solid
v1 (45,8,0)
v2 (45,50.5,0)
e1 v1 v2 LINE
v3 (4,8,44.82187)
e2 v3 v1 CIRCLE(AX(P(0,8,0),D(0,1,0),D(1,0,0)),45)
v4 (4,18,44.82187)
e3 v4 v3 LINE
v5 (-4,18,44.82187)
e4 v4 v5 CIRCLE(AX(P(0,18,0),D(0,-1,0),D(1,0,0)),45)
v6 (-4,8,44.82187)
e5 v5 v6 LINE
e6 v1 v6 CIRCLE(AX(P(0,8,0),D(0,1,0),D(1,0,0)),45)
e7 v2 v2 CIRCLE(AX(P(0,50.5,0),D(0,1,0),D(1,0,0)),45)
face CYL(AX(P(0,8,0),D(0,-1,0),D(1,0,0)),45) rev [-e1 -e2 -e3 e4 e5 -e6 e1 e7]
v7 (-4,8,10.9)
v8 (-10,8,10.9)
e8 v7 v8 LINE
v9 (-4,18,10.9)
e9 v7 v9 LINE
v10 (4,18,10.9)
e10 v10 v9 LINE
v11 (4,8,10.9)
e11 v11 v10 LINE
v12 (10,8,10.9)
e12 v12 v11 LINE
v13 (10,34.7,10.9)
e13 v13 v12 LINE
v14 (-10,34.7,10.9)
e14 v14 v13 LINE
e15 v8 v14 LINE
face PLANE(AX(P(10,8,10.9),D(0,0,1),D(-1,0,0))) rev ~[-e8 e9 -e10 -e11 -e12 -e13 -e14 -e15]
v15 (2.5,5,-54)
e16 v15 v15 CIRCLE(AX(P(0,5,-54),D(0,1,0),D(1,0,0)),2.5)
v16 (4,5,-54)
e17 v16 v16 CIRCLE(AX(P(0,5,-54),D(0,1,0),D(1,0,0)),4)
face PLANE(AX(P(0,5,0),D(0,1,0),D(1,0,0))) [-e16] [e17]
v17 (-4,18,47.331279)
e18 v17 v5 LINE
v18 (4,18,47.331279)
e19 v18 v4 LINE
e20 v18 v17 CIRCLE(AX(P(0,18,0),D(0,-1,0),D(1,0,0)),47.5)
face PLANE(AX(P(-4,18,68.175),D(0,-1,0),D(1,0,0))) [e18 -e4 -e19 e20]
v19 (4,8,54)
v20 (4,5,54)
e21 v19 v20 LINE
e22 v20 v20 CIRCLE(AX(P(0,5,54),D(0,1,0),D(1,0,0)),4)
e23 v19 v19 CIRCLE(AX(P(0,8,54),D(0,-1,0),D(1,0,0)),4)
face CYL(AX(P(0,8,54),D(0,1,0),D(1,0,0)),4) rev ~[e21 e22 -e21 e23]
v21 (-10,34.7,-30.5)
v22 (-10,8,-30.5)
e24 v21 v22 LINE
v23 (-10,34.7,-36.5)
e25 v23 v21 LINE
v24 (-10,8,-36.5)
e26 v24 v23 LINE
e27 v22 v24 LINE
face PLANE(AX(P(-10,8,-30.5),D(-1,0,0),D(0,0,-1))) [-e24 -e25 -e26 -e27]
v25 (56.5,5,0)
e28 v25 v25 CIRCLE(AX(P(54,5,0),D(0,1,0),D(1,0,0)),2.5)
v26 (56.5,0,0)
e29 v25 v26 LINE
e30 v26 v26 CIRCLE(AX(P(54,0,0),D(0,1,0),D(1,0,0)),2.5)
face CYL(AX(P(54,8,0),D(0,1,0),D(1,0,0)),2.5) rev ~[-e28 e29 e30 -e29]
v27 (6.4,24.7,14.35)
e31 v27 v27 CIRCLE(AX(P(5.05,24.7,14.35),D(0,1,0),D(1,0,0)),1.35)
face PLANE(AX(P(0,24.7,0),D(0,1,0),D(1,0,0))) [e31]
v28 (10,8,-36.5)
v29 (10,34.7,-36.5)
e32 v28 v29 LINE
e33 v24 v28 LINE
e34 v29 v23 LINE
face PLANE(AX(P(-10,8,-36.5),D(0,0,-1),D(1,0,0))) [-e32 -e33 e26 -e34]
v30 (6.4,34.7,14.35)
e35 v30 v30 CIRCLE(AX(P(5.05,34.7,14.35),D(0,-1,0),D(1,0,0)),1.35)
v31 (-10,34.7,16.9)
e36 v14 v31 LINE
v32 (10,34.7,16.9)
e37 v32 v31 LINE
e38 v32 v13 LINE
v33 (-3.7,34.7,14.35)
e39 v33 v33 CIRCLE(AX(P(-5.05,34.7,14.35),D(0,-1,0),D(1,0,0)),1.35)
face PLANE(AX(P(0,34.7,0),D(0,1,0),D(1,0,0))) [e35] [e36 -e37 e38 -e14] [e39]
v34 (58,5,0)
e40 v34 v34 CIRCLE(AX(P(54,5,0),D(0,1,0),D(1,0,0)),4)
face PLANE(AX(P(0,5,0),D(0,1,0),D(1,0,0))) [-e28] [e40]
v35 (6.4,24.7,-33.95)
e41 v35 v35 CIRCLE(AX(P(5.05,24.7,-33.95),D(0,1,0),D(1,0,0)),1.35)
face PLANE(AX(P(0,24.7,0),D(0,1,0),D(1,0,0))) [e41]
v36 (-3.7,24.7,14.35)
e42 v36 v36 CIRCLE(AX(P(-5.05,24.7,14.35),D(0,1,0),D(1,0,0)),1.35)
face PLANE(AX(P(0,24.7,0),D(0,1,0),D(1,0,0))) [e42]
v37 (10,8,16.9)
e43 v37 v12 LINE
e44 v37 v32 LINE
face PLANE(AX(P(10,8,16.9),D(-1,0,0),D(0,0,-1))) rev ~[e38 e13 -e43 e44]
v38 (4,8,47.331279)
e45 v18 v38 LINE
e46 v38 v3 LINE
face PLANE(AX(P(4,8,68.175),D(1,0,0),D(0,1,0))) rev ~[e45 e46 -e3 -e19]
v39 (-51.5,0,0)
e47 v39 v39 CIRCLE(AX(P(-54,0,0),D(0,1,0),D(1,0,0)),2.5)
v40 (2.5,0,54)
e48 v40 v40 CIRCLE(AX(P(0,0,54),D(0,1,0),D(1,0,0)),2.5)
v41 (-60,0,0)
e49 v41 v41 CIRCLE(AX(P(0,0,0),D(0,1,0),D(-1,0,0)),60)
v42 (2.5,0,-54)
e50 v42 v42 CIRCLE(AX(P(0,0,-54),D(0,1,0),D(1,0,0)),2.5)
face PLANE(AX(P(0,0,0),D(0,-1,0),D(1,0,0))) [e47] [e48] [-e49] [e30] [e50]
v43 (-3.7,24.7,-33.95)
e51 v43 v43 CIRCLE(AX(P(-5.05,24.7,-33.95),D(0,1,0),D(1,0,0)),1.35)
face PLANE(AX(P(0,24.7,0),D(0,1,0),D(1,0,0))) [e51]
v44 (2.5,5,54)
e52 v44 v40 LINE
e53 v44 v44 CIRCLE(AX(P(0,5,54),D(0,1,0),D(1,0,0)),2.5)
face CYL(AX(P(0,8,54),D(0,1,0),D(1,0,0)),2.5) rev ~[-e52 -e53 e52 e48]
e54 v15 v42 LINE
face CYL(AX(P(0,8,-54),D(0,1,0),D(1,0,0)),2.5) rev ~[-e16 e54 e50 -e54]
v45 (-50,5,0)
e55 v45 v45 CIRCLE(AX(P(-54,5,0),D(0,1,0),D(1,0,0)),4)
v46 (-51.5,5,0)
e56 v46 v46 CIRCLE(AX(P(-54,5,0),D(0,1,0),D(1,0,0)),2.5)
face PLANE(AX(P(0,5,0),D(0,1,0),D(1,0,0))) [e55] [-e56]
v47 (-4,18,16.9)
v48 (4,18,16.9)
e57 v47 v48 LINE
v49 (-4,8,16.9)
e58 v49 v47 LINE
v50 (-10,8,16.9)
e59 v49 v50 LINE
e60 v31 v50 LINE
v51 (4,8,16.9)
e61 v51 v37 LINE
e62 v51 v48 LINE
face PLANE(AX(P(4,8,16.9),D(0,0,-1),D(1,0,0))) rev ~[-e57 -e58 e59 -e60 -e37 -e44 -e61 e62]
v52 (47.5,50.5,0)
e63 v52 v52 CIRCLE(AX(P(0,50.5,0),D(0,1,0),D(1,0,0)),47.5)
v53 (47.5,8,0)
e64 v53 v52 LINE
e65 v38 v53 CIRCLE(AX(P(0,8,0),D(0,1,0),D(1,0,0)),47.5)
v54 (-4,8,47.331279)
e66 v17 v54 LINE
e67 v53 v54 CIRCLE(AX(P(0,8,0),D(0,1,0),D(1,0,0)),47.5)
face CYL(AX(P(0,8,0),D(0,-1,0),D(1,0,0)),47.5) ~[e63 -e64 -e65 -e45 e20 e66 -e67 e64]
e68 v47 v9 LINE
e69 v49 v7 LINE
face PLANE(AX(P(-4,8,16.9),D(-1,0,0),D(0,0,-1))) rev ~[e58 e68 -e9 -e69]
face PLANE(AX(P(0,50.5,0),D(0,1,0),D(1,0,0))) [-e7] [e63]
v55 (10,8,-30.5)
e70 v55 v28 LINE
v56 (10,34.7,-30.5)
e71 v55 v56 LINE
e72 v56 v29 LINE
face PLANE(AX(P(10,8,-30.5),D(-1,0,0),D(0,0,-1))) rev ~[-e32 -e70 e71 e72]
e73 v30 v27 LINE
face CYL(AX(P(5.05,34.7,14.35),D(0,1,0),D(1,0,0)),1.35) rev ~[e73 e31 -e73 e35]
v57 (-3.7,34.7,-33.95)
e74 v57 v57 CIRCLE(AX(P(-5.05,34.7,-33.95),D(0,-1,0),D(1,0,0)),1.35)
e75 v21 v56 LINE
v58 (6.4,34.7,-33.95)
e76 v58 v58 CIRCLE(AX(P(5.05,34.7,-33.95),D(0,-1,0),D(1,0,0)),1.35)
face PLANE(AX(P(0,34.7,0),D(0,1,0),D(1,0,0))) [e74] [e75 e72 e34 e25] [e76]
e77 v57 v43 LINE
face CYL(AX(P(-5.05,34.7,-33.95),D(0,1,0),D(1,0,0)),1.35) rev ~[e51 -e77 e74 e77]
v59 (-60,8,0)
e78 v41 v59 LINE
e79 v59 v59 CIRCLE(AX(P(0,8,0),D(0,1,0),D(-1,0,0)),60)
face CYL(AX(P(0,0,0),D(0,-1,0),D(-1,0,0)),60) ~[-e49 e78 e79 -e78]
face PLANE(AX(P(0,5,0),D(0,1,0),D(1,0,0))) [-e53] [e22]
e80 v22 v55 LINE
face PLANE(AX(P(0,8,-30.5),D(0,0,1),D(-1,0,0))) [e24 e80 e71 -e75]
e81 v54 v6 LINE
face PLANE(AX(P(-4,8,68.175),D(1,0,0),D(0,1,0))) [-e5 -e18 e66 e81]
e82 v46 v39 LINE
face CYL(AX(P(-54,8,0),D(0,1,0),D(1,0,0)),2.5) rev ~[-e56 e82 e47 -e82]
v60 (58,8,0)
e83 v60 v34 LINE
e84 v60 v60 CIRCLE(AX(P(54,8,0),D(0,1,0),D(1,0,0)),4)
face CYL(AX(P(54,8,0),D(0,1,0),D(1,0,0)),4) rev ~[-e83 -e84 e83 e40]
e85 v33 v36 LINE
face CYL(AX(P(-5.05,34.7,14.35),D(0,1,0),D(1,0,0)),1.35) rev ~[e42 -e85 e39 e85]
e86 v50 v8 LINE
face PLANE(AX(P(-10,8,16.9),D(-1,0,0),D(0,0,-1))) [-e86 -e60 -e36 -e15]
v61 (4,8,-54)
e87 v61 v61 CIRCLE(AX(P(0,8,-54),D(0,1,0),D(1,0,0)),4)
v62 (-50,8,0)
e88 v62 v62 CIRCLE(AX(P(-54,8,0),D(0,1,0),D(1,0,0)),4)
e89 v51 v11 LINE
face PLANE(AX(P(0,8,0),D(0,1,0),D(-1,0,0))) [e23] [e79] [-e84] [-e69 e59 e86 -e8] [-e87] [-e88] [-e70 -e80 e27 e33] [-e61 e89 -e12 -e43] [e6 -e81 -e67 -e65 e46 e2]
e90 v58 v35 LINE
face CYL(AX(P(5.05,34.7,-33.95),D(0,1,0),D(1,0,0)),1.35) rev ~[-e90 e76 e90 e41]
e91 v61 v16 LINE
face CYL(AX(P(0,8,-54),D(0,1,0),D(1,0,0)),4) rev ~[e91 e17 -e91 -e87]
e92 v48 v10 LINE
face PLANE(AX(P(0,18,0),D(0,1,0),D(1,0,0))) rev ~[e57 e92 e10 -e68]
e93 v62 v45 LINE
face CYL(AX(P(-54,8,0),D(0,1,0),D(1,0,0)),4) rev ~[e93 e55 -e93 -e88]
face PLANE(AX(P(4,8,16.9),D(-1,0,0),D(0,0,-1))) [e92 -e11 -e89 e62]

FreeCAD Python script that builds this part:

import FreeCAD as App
import Part
import Sketcher


def add_polygon(sketch, points):
    """Adds a closed chain of lines whose ends are joined by coincident constraints."""
    first, n = sketch.GeometryCount, len(points)
    for a, b in zip(points, points[1:] + points[:1]):
        sketch.addGeometry(Part.LineSegment(App.Vector(*a, 0), App.Vector(*b, 0)), False)
    for i in range(n):
        sketch.addConstraint(Sketcher.Constraint("Coincident", first + i, 2, first + (i + 1) % n, 1))

doc = App.newDocument("Part")
body = doc.addObject("PartDesign::Body", "Body")
body.AllowCompound = True

# Sketch on XZ plane
sketch1 = body.newObject("Sketcher::SketchObject", "Sketch")
sketch1.AttachmentSupport = (doc.getObject("XZ_Plane"), [""])
sketch1.MapMode = "FlatFace"
sketch1.addGeometry(Part.Circle(App.Vector(0, 0, 0), App.Vector(0, 0, 1), 60), False)
sketch1.addConstraint(Sketcher.Constraint("Coincident", 0, 3, -1, 1))
sketch1.addConstraint(Sketcher.Constraint("Diameter", 0, 120.0))
pad1 = body.newObject("PartDesign::Pad", "Pad")
pad1.Profile = sketch1
pad1.Length = 8
pad1.Reversed = True

# Sketch on XZ plane
sketch2 = body.newObject("Sketcher::SketchObject", "Sketch001")
sketch2.AttachmentSupport = (doc.getObject("XZ_Plane"), [""])
sketch2.MapMode = "FlatFace"
sketch2.AttachmentOffset = App.Placement(App.Vector(0, 0, -8), App.Rotation())
sketch2.addGeometry(Part.Circle(App.Vector(-54, 0, 0), App.Vector(0, 0, 1), 2.5), False)
sketch2.addGeometry(Part.Circle(App.Vector(0, 54, 0), App.Vector(0, 0, 1), 2.5), False)
sketch2.addGeometry(Part.Circle(App.Vector(54, 0, 0), App.Vector(0, 0, 1), 2.5), False)
sketch2.addGeometry(Part.Circle(App.Vector(0, -54, 0), App.Vector(0, 0, 1), 2.5), False)
sketch2.addConstraint(Sketcher.Constraint("Equal", 0, 1))
sketch2.addConstraint(Sketcher.Constraint("Equal", 1, 2))
sketch2.addConstraint(Sketcher.Constraint("Equal", 2, 3))
sketch2.addConstraint(Sketcher.Constraint("Symmetric", 0, 3, 2, 3, -1, 1))
sketch2.addConstraint(Sketcher.Constraint("Symmetric", 1, 3, 3, 3, -1, 1))
sketch2.addConstraint(Sketcher.Constraint("PointOnObject", 0, 3, -1))
sketch2.addConstraint(Sketcher.Constraint("PointOnObject", 1, 3, -2))
sketch2.addConstraint(Sketcher.Constraint("Diameter", 0, 5.0))
sketch2.addConstraint(Sketcher.Constraint("DistanceX", 0, 3, -1, 1, 54.0))
sketch2.addConstraint(Sketcher.Constraint("DistanceY", -1, 1, 1, 3, 54.0))
pocket1 = body.newObject("PartDesign::Pocket", "Pocket")
pocket1.Profile = sketch2
pocket1.Length = 8
pocket1.Reversed = True

# Sketch on XZ plane
sketch3 = body.newObject("Sketcher::SketchObject", "Sketch002")
sketch3.AttachmentSupport = (doc.getObject("XZ_Plane"), [""])
sketch3.MapMode = "FlatFace"
sketch3.AttachmentOffset = App.Placement(App.Vector(0, 0, -8), App.Rotation())
sketch3.addGeometry(Part.Circle(App.Vector(-54, 0, 0), App.Vector(0, 0, 1), 4), False)
sketch3.addGeometry(Part.Circle(App.Vector(-54, 0, 0), App.Vector(0, 0, 1), 2.5), False)
sketch3.addGeometry(Part.Circle(App.Vector(0, -54, 0), App.Vector(0, 0, 1), 4), False)
sketch3.addGeometry(Part.Circle(App.Vector(0, -54, 0), App.Vector(0, 0, 1), 2.5), False)
sketch3.addGeometry(Part.Circle(App.Vector(54, 0, 0), App.Vector(0, 0, 1), 4), False)
sketch3.addGeometry(Part.Circle(App.Vector(54, 0, 0), App.Vector(0, 0, 1), 2.5), False)
sketch3.addGeometry(Part.Circle(App.Vector(0, 54, 0), App.Vector(0, 0, 1), 4), False)
sketch3.addGeometry(Part.Circle(App.Vector(0, 54, 0), App.Vector(0, 0, 1), 2.5), False)
sketch3.addConstraint(Sketcher.Constraint("Coincident", 1, 3, 0, 3))
sketch3.addConstraint(Sketcher.Constraint("Coincident", 3, 3, 2, 3))
sketch3.addConstraint(Sketcher.Constraint("Coincident", 5, 3, 4, 3))
sketch3.addConstraint(Sketcher.Constraint("Coincident", 7, 3, 6, 3))
sketch3.addConstraint(Sketcher.Constraint("Equal", 0, 2))
sketch3.addConstraint(Sketcher.Constraint("Equal", 1, 3))
sketch3.addConstraint(Sketcher.Constraint("Equal", 2, 4))
sketch3.addConstraint(Sketcher.Constraint("Equal", 3, 5))
sketch3.addConstraint(Sketcher.Constraint("Equal", 4, 6))
sketch3.addConstraint(Sketcher.Constraint("Equal", 5, 7))
sketch3.addConstraint(Sketcher.Constraint("Symmetric", 0, 3, 4, 3, -1, 1))
sketch3.addConstraint(Sketcher.Constraint("Symmetric", 2, 3, 6, 3, -1, 1))
sketch3.addConstraint(Sketcher.Constraint("PointOnObject", 0, 3, -1))
sketch3.addConstraint(Sketcher.Constraint("PointOnObject", 2, 3, -2))
sketch3.addConstraint(Sketcher.Constraint("Diameter", 0, 8.0))
sketch3.addConstraint(Sketcher.Constraint("Diameter", 1, 5.0))
sketch3.addConstraint(Sketcher.Constraint("DistanceX", 0, 3, -1, 1, 54.0))
sketch3.addConstraint(Sketcher.Constraint("DistanceY", 2, 3, -1, 1, 54.0))
pocket2 = body.newObject("PartDesign::Pocket", "Pocket001")
pocket2.Profile = sketch3
pocket2.Length = 3
pocket2.Reversed = True

# Sketch on XZ plane
sketch4 = body.newObject("Sketcher::SketchObject", "Sketch003")
sketch4.AttachmentSupport = (doc.getObject("XZ_Plane"), [""])
sketch4.MapMode = "FlatFace"
sketch4.AttachmentOffset = App.Placement(App.Vector(0, 0, -8), App.Rotation())
sketch4.addGeometry(Part.Circle(App.Vector(0, 0, 0), App.Vector(0, 0, 1), 48), False)
sketch4.addGeometry(Part.Circle(App.Vector(0, 0, 0), App.Vector(0, 0, 1), 45), False)
sketch4.addConstraint(Sketcher.Constraint("Coincident", 0, 3, -1, 1))
sketch4.addConstraint(Sketcher.Constraint("Coincident", 1, 3, -1, 1))
sketch4.addConstraint(Sketcher.Constraint("Diameter", 0, 95.0))
sketch4.addConstraint(Sketcher.Constraint("Diameter", 1, 90.0))
pad2 = body.newObject("PartDesign::Pad", "Pad001")
pad2.Profile = sketch4
pad2.Length = 10
pad2.Reversed = True

# Sketch on XZ plane
sketch5 = body.newObject("Sketcher::SketchObject", "Sketch004")
sketch5.AttachmentSupport = (doc.getObject("XZ_Plane"), [""])
sketch5.MapMode = "FlatFace"
sketch5.AttachmentOffset = App.Placement(App.Vector(0, 0, -8), App.Rotation())
add_polygon(sketch5, [(10, 9), (-10, 9), (-10, 17), (10, 17)])  # lines 0-3
add_polygon(sketch5, [(-10, -31), (10, -31), (10, -39), (-10, -39)])  # lines 4-7
sketch5.addConstraint(Sketcher.Constraint("Horizontal", 0))
sketch5.addConstraint(Sketcher.Constraint("Vertical", 1))
sketch5.addConstraint(Sketcher.Constraint("Horizontal", 2))
sketch5.addConstraint(Sketcher.Constraint("Vertical", 3))
sketch5.addConstraint(Sketcher.Constraint("Horizontal", 4))
sketch5.addConstraint(Sketcher.Constraint("Vertical", 5))
sketch5.addConstraint(Sketcher.Constraint("Horizontal", 6))
sketch5.addConstraint(Sketcher.Constraint("Vertical", 7))
sketch5.addConstraint(Sketcher.Constraint("Vertical", 3, 2, 4, 2))
sketch5.addConstraint(Sketcher.Constraint("Vertical", 1, 2, 6, 2))
sketch5.addConstraint(Sketcher.Constraint("Equal", 3, 5))
sketch5.addConstraint(Sketcher.Constraint("DistanceX", 0, 2, 0, 1, 20.0))
sketch5.addConstraint(Sketcher.Constraint("DistanceY", 1, 1, 1, 2, 8.0))
sketch5.addConstraint(Sketcher.Constraint("DistanceX", 0, 2, -1, 1, 10.0))
sketch5.addConstraint(Sketcher.Constraint("DistanceY", -1, 1, 0, 2, 9.0))
sketch5.addConstraint(Sketcher.Constraint("DistanceY", 4, 2, 3, 2, 40.0))
pad3 = body.newObject("PartDesign::Pad", "Pad002")
pad3.Profile = sketch5
pad3.Length = 28
pad3.Reversed = True

# Sketch on XZ plane
sketch6 = body.newObject("Sketcher::SketchObject", "Sketch005")
sketch6.AttachmentSupport = (doc.getObject("XZ_Plane"), [""])
sketch6.MapMode = "FlatFace"
sketch6.AttachmentOffset = App.Placement(App.Vector(0, 0, -36), App.Rotation())
add_polygon(sketch6, [(4, 17), (4, 9), (-4, 9), (-4, 17)])  # lines 0-3
sketch6.addConstraint(Sketcher.Constraint("Vertical", 0))
sketch6.addConstraint(Sketcher.Constraint("Horizontal", 1))
sketch6.addConstraint(Sketcher.Constraint("Vertical", 2))
sketch6.addConstraint(Sketcher.Constraint("Horizontal", 3))
sketch6.addConstraint(Sketcher.Constraint("Equal", 3, 0))
sketch6.addConstraint(Sketcher.Constraint("DistanceX", -1, 1, 0, 2, 4.0))
sketch6.addConstraint(Sketcher.Constraint("DistanceX", 1, 2, -1, 1, 4.0))
sketch6.addConstraint(Sketcher.Constraint("DistanceY", -1, 1, 0, 2, 9.0))
pocket3 = body.newObject("PartDesign::Pocket", "Pocket002")
pocket3.Profile = sketch6
pocket3.Length = 28
pocket3.Reversed = True

# Sketch on XZ plane
sketch7 = body.newObject("Sketcher::SketchObject", "Sketch006")
sketch7.AttachmentSupport = (doc.getObject("XZ_Plane"), [""])
sketch7.MapMode = "FlatFace"
sketch7.AttachmentOffset = App.Placement(App.Vector(0, 0, -36), App.Rotation())
add_polygon(sketch7, [(-4, 9), (-4, 17), (4, 17), (4, 9)])  # lines 0-3
sketch7.addConstraint(Sketcher.Constraint("Vertical", 0))
sketch7.addConstraint(Sketcher.Constraint("Horizontal", 1))
sketch7.addConstraint(Sketcher.Constraint("Vertical", 2))
sketch7.addConstraint(Sketcher.Constraint("Horizontal", 3))
sketch7.addConstraint(Sketcher.Constraint("Equal", 3, 0))
sketch7.addConstraint(Sketcher.Constraint("DistanceX", 1, 1, 1, 2, 8.0))
sketch7.addConstraint(Sketcher.Constraint("DistanceX", 0, 2, -1, 1, 4.0))
sketch7.addConstraint(Sketcher.Constraint("DistanceY", -1, 1, 0, 2, 17.0))
pad4 = body.newObject("PartDesign::Pad", "Pad003")
pad4.Profile = sketch7
pad4.Length = 22

# Sketch on XZ plane
sketch8 = body.newObject("Sketcher::SketchObject", "Sketch007")
sketch8.AttachmentSupport = (doc.getObject("XZ_Plane"), [""])
sketch8.MapMode = "FlatFace"
sketch8.AttachmentOffset = App.Placement(App.Vector(0, 0, -36), App.Rotation())
sketch8.addGeometry(Part.Circle(App.Vector(-5, 15, 0), App.Vector(0, 0, 1), 2), False)
sketch8.addGeometry(Part.Circle(App.Vector(5, 15, 0), App.Vector(0, 0, 1), 2), False)
sketch8.addGeometry(Part.Circle(App.Vector(-5, -37, 0), App.Vector(0, 0, 1), 2), False)
sketch8.addGeometry(Part.Circle(App.Vector(5, -37, 0), App.Vector(0, 0, 1), 2), False)
sketch8.addConstraint(Sketcher.Constraint("Equal", 0, 1))
sketch8.addConstraint(Sketcher.Constraint("Equal", 1, 2))
sketch8.addConstraint(Sketcher.Constraint("Equal", 2, 3))
sketch8.addConstraint(Sketcher.Constraint("Symmetric", 0, 3, 1, 3, -2))
sketch8.addConstraint(Sketcher.Constraint("Symmetric", 2, 3, 3, 3, -2))
sketch8.addConstraint(Sketcher.Constraint("Vertical", 0, 3, 2, 3))
sketch8.addConstraint(Sketcher.Constraint("Diameter", 0, 4.0))
sketch8.addConstraint(Sketcher.Constraint("DistanceX", 0, 3, -1, 1, 5.0))
sketch8.addConstraint(Sketcher.Constraint("DistanceY", -1, 1, 0, 3, 15.0))
sketch8.addConstraint(Sketcher.Constraint("DistanceY", 2, 3, -1, 1, 37.0))
pocket4 = body.newObject("PartDesign::Pocket", "Pocket003")
pocket4.Profile = sketch8
pocket4.Length = 10
pocket4.Reversed = True

# Sketch on XZ plane
sketch9 = body.newObject("Sketcher::SketchObject", "Sketch008")
sketch9.AttachmentSupport = (doc.getObject("XZ_Plane"), [""])
sketch9.MapMode = "FlatFace"
sketch9.AttachmentOffset = App.Placement(App.Vector(0, 0, -36), App.Rotation())
add_polygon(sketch9, [(-10, 9), (-10, 17), (10, 17), (10, 9)])  # lines 0-3
add_polygon(sketch9, [(-10, -31), (10, -31), (10, -39), (-10, -39)])  # lines 4-7
sketch9.addConstraint(Sketcher.Constraint("Vertical", 0))
sketch9.addConstraint(Sketcher.Constraint("Horizontal", 1))
sketch9.addConstraint(Sketcher.Constraint("Vertical", 2))
sketch9.addConstraint(Sketcher.Constraint("Horizontal", 3))
sketch9.addConstraint(Sketcher.Constraint("Horizontal", 4))
sketch9.addConstraint(Sketcher.Constraint("Vertical", 5))
sketch9.addConstraint(Sketcher.Constraint("Horizontal", 6))
sketch9.addConstraint(Sketcher.Constraint("Vertical", 7))
sketch9.addConstraint(Sketcher.Constraint("Vertical", 2, 2, 4, 2))
sketch9.addConstraint(Sketcher.Constraint("Vertical", 3, 2, 6, 2))
sketch9.addConstraint(Sketcher.Constraint("Equal", 2, 5))
sketch9.addConstraint(Sketcher.Constraint("DistanceX", 1, 1, 1, 2, 20.0))
sketch9.addConstraint(Sketcher.Constraint("DistanceY", 0, 1, 0, 2, 8.0))
sketch9.addConstraint(Sketcher.Constraint("DistanceX", 0, 2, -1, 1, 10.0))
sketch9.addConstraint(Sketcher.Constraint("DistanceY", -1, 1, 0, 2, 17.0))
sketch9.addConstraint(Sketcher.Constraint("DistanceY", 4, 2, -1, 1, 31.0))
pocket5 = body.newObject("PartDesign::Pocket", "Pocket004")
pocket5.Profile = sketch9
pocket5.Length = 28
pocket5.Reversed = True

# Sketch on XZ plane
sketch10 = body.newObject("Sketcher::SketchObject", "Sketch009")
sketch10.AttachmentSupport = (doc.getObject("XZ_Plane"), [""])
sketch10.MapMode = "FlatFace"
sketch10.AttachmentOffset = App.Placement(App.Vector(0, 0, -8), App.Rotation())
add_polygon(sketch10, [(-10, -30), (10, -30), (10, -36), (-10, -36)])  # lines 0-3
add_polygon(sketch10, [(-4, 11), (-10, 11), (-10, 17), (-4, 17)])  # lines 4-7
add_polygon(sketch10, [(10, 11), (4, 11), (4, 17), (10, 17)])  # lines 8-11
sketch10.addConstraint(Sketcher.Constraint("Horizontal", 0))
sketch10.addConstraint(Sketcher.Constraint("Vertical", 1))
sketch10.addConstraint(Sketcher.Constraint("Horizontal", 2))
sketch10.addConstraint(Sketcher.Constraint("Vertical", 3))
sketch10.addConstraint(Sketcher.Constraint("Horizontal", 4))
sketch10.addConstraint(Sketcher.Constraint("Vertical", 5))
sketch10.addConstraint(Sketcher.Constraint("Horizontal", 6))
sketch10.addConstraint(Sketcher.Constraint("Vertical", 7))
sketch10.addConstraint(Sketcher.Constraint("Horizontal", 8))
sketch10.addConstraint(Sketcher.Constraint("Vertical", 9))
sketch10.addConstraint(Sketcher.Constraint("Horizontal", 10))
sketch10.addConstraint(Sketcher.Constraint("Vertical", 11))
sketch10.addConstraint(Sketcher.Constraint("Symmetric", 7, 2, 8, 2, -2))
sketch10.addConstraint(Sketcher.Constraint("Symmetric", 5, 2, 10, 2, -2))
sketch10.addConstraint(Sketcher.Constraint("Vertical", 3, 2, 4, 2))
sketch10.addConstraint(Sketcher.Constraint("Vertical", 1, 2, 10, 2))
sketch10.addConstraint(Sketcher.Constraint("Equal", 10, 1))
sketch10.addConstraint(Sketcher.Constraint("Equal", 3, 5))
sketch10.addConstraint(Sketcher.Constraint("DistanceX", 4, 2, 4, 1, 6.0))
sketch10.addConstraint(Sketcher.Constraint("DistanceX", -1, 1, 0, 2, 10.0))
sketch10.addConstraint(Sketcher.Constraint("DistanceY", 1, 2, -1, 1, 36.5))
sketch10.addConstraint(Sketcher.Constraint("DistanceY", -1, 1, 5, 2, 16.9))
pad5 = body.newObject("PartDesign::Pad", "Pad004")
pad5.Profile = sketch10
pad5.Length = 10
pad5.Reversed = True

# Sketch on XZ plane
sketch11 = body.newObject("Sketcher::SketchObject", "Sketch010")
sketch11.AttachmentSupport = (doc.getObject("XZ_Plane"), [""])
sketch11.MapMode = "FlatFace"
sketch11.AttachmentOffset = App.Placement(App.Vector(0, 0, -18), App.Rotation())
add_polygon(sketch11, [(-10, -36), (-10, -30), (10, -30), (10, -36)])  # lines 0-3
add_polygon(sketch11, [(-10, 11), (-10, 17), (10, 17), (10, 11)])  # lines 4-7
sketch11.addConstraint(Sketcher.Constraint("Vertical", 0))
sketch11.addConstraint(Sketcher.Constraint("Horizontal", 1))
sketch11.addConstraint(Sketcher.Constraint("Vertical", 2))
sketch11.addConstraint(Sketcher.Constraint("Horizontal", 3))
sketch11.addConstraint(Sketcher.Constraint("Vertical", 4))
sketch11.addConstraint(Sketcher.Constraint("Horizontal", 5))
sketch11.addConstraint(Sketcher.Constraint("Vertical", 6))
sketch11.addConstraint(Sketcher.Constraint("Horizontal", 7))
sketch11.addConstraint(Sketcher.Constraint("Vertical", 3, 2, 4, 2))
sketch11.addConstraint(Sketcher.Constraint("Vertical", 2, 2, 5, 2))
sketch11.addConstraint(Sketcher.Constraint("Equal", 2, 4))
sketch11.addConstraint(Sketcher.Constraint("DistanceX", 1, 1, 1, 2, 20.0))
sketch11.addConstraint(Sketcher.Constraint("DistanceY", 0, 1, 0, 2, 6.0))
sketch11.addConstraint(Sketcher.Constraint("DistanceX", 0, 2, -1, 1, 10.0))
sketch11.addConstraint(Sketcher.Constraint("DistanceY", 0, 2, -1, 1, 30.5))
sketch11.addConstraint(Sketcher.Constraint("DistanceY", -1, 1, 4, 2, 16.9))
pad6 = body.newObject("PartDesign::Pad", "Pad005")
pad6.Profile = sketch11
pad6.Length = 16.7
pad6.Reversed = True

# Sketch on XZ plane
sketch12 = body.newObject("Sketcher::SketchObject", "Sketch011")
sketch12.AttachmentSupport = (doc.getObject("XZ_Plane"), [""])
sketch12.MapMode = "FlatFace"
sketch12.AttachmentOffset = App.Placement(App.Vector(0, 0, -34.7), App.Rotation())
sketch12.addGeometry(Part.Circle(App.Vector(5, 14.3, 0), App.Vector(0, 0, 1), 1.4), False)
sketch12.addGeometry(Part.Circle(App.Vector(-5, 14.3, 0), App.Vector(0, 0, 1), 1.4), False)
sketch12.addGeometry(Part.Circle(App.Vector(5, -34, 0), App.Vector(0, 0, 1), 1.4), False)
sketch12.addGeometry(Part.Circle(App.Vector(-5, -34, 0), App.Vector(0, 0, 1), 1.4), False)
sketch12.addConstraint(Sketcher.Constraint("Equal", 0, 1))
sketch12.addConstraint(Sketcher.Constraint("Equal", 1, 2))
sketch12.addConstraint(Sketcher.Constraint("Equal", 2, 3))
sketch12.addConstraint(Sketcher.Constraint("Symmetric", 0, 3, 1, 3, -2))
sketch12.addConstraint(Sketcher.Constraint("Symmetric", 2, 3, 3, 3, -2))
sketch12.addConstraint(Sketcher.Constraint("Vertical", 0, 3, 2, 3))
sketch12.addConstraint(Sketcher.Constraint("Diameter", 0, 2.7))
sketch12.addConstraint(Sketcher.Constraint("DistanceX", -1, 1, 0, 3, 5.05))
sketch12.addConstraint(Sketcher.Constraint("DistanceY", 2, 3, 0, 3, 48.3))
sketch12.addConstraint(Sketcher.Constraint("DistanceY", -1, 1, 0, 3, 14.35))
pocket6 = body.newObject("PartDesign::Pocket", "Pocket005")
pocket6.Profile = sketch12
pocket6.Length = 10
pocket6.Reversed = True

# Sketch on XZ plane
sketch13 = body.newObject("Sketcher::SketchObject", "Sketch012")
sketch13.AttachmentSupport = (doc.getObject("XZ_Plane"), [""])
sketch13.MapMode = "FlatFace"
sketch13.AttachmentOffset = App.Placement(App.Vector(0, 0, -18), App.Rotation())
sketch13.addGeometry(Part.Circle(App.Vector(0, 0, 0), App.Vector(0, 0, 1), 48), False)
sketch13.addGeometry(Part.Circle(App.Vector(0, 0, 0), App.Vector(0, 0, 1), 45), False)
sketch13.addConstraint(Sketcher.Constraint("Coincident", 0, 3, -1, 1))
sketch13.addConstraint(Sketcher.Constraint("Coincident", 1, 3, -1, 1))
sketch13.addConstraint(Sketcher.Constraint("Diameter", 0, 95.0))
sketch13.addConstraint(Sketcher.Constraint("Diameter", 1, 90.0))
pocket7 = body.newObject("PartDesign::Pocket", "Pocket006")
pocket7.Profile = sketch13
pocket7.Length = 47.3
pocket7.Reversed = True

# Sketch on XZ plane
sketch14 = body.newObject("Sketcher::SketchObject", "Sketch013")
sketch14.AttachmentSupport = (doc.getObject("XZ_Plane"), [""])
sketch14.MapMode = "FlatFace"
sketch14.AttachmentOffset = App.Placement(App.Vector(0, 0, -8), App.Rotation())
sketch14.addGeometry(Part.Circle(App.Vector(0, 0, 0), App.Vector(0, 0, 1), 48), False)
sketch14.addGeometry(Part.Circle(App.Vector(0, 0, 0), App.Vector(0, 0, 1), 45), False)
sketch14.addConstraint(Sketcher.Constraint("Coincident", 0, 3, -1, 1))
sketch14.addConstraint(Sketcher.Constraint("Coincident", 1, 3, -1, 1))
sketch14.addConstraint(Sketcher.Constraint("Diameter", 0, 95.0))
sketch14.addConstraint(Sketcher.Constraint("Diameter", 1, 90.0))
pad7 = body.newObject("PartDesign::Pad", "Pad006")
pad7.Profile = sketch14
pad7.Length = 42.5
pad7.Reversed = True

# Sketch on XZ plane
sketch15 = body.newObject("Sketcher::SketchObject", "Sketch014")
sketch15.AttachmentSupport = (doc.getObject("XZ_Plane"), [""])
sketch15.MapMode = "FlatFace"
sketch15.AttachmentOffset = App.Placement(App.Vector(0, 0, -50.5), App.Rotation())
sketch15.addGeometry(Part.Circle(App.Vector(0, 0, 0), App.Vector(0, 0, 1), 48), False)
sketch15.addGeometry(Part.Circle(App.Vector(0, 0, 0), App.Vector(0, 0, 1), 45), False)
sketch15.addConstraint(Sketcher.Constraint("Coincident", 0, 3, -1, 1))
sketch15.addConstraint(Sketcher.Constraint("Coincident", 1, 3, -1, 1))
sketch15.addConstraint(Sketcher.Constraint("Diameter", 0, 95.0))
sketch15.addConstraint(Sketcher.Constraint("Diameter", 1, 90.0))
pocket8 = body.newObject("PartDesign::Pocket", "Pocket007")
pocket8.Profile = sketch15
pocket8.Length = 42.5
pocket8.Reversed = True

# Sketch on XZ plane
sketch16 = body.newObject("Sketcher::SketchObject", "Sketch015")
sketch16.AttachmentSupport = (doc.getObject("XZ_Plane"), [""])
sketch16.MapMode = "FlatFace"
sketch16.addGeometry(Part.Circle(App.Vector(0, 0, 0), App.Vector(0, 0, 1), 48), False)
sketch16.addGeometry(Part.Circle(App.Vector(0, 0, 0), App.Vector(0, 0, 1), 45), False)
sketch16.addConstraint(Sketcher.Constraint("Coincident", 0, 3, -1, 1))
sketch16.addConstraint(Sketcher.Constraint("Coincident", 1, 3, -1, 1))
sketch16.addConstraint(Sketcher.Constraint("Diameter", 0, 95.0))
sketch16.addConstraint(Sketcher.Constraint("Diameter", 1, 90.0))
pad8 = body.newObject("PartDesign::Pad", "Pad007")
pad8.Profile = sketch16
pad8.Length = 8
pad8.Reversed = True

# Sketch on XZ plane
sketch17 = body.newObject("Sketcher::SketchObject", "Sketch016")
sketch17.AttachmentSupport = (doc.getObject("XZ_Plane"), [""])
sketch17.MapMode = "FlatFace"
sketch17.AttachmentOffset = App.Placement(App.Vector(0, 0, -8), App.Rotation())
sketch17.addGeometry(Part.Circle(App.Vector(0, 0, 0), App.Vector(0, 0, 1), 48), False)
sketch17.addGeometry(Part.Circle(App.Vector(0, 0, 0), App.Vector(0, 0, 1), 45), False)
sketch17.addConstraint(Sketcher.Constraint("Coincident", 0, 3, -1, 1))
sketch17.addConstraint(Sketcher.Constraint("Coincident", 1, 3, -1, 1))
sketch17.addConstraint(Sketcher.Constraint("Diameter", 0, 95.0))
sketch17.addConstraint(Sketcher.Constraint("Diameter", 1, 90.0))
pad9 = body.newObject("PartDesign::Pad", "Pad008")
pad9.Profile = sketch17
pad9.Length = 42.5
pad9.Reversed = True

# Sketch on XY plane
sketch18 = body.newObject("Sketcher::SketchObject", "Sketch017")
sketch18.AttachmentSupport = (doc.getObject("XY_Plane"), [""])
sketch18.MapMode = "FlatFace"
sketch18.AttachmentOffset = App.Placement(App.Vector(0, 0, 16.9), App.Rotation())
add_polygon(sketch18, [(-4, 18), (-4, 8), (4, 8), (4, 18)])  # lines 0-3
sketch18.addConstraint(Sketcher.Constraint("Vertical", 0))
sketch18.addConstraint(Sketcher.Constraint("Horizontal", 1))
sketch18.addConstraint(Sketcher.Constraint("Vertical", 2))
sketch18.addConstraint(Sketcher.Constraint("Horizontal", 3))
sketch18.addConstraint(Sketcher.Constraint("DistanceX", 1, 1, 1, 2, 8.0))
sketch18.addConstraint(Sketcher.Constraint("DistanceY", 0, 2, 0, 1, 10.0))
sketch18.addConstraint(Sketcher.Constraint("DistanceX", 0, 2, -1, 1, 4.0))
sketch18.addConstraint(Sketcher.Constraint("DistanceY", -1, 1, 0, 2, 8.0))
pad10 = body.newObject("PartDesign::Pad", "Pad009")
pad10.Profile = sketch18
pad10.Length = 51.275

# Sketch on XY plane
sketch19 = body.newObject("Sketcher::SketchObject", "Sketch018")
sketch19.AttachmentSupport = (doc.getObject("XY_Plane"), [""])
sketch19.MapMode = "FlatFace"
sketch19.AttachmentOffset = App.Placement(App.Vector(0, 0, 68.175), App.Rotation())
add_polygon(sketch19, [(-4, 8), (4, 8), (4, 18), (-4, 18)])  # lines 0-3
sketch19.addConstraint(Sketcher.Constraint("Horizontal", 0))
sketch19.addConstraint(Sketcher.Constraint("Vertical", 1))
sketch19.addConstraint(Sketcher.Constraint("Horizontal", 2))
sketch19.addConstraint(Sketcher.Constraint("Vertical", 3))
sketch19.addConstraint(Sketcher.Constraint("DistanceX", 0, 1, 0, 2, 8.0))
sketch19.addConstraint(Sketcher.Constraint("DistanceY", 1, 1, 1, 2, 10.0))
sketch19.addConstraint(Sketcher.Constraint("DistanceX", -1, 1, 0, 2, 4.0))
sketch19.addConstraint(Sketcher.Constraint("DistanceY", -1, 1, 0, 2, 8.0))
pocket9 = body.newObject("PartDesign::Pocket", "Pocket008")
pocket9.Profile = sketch19
pocket9.Length = 82.075

doc.recompute()
